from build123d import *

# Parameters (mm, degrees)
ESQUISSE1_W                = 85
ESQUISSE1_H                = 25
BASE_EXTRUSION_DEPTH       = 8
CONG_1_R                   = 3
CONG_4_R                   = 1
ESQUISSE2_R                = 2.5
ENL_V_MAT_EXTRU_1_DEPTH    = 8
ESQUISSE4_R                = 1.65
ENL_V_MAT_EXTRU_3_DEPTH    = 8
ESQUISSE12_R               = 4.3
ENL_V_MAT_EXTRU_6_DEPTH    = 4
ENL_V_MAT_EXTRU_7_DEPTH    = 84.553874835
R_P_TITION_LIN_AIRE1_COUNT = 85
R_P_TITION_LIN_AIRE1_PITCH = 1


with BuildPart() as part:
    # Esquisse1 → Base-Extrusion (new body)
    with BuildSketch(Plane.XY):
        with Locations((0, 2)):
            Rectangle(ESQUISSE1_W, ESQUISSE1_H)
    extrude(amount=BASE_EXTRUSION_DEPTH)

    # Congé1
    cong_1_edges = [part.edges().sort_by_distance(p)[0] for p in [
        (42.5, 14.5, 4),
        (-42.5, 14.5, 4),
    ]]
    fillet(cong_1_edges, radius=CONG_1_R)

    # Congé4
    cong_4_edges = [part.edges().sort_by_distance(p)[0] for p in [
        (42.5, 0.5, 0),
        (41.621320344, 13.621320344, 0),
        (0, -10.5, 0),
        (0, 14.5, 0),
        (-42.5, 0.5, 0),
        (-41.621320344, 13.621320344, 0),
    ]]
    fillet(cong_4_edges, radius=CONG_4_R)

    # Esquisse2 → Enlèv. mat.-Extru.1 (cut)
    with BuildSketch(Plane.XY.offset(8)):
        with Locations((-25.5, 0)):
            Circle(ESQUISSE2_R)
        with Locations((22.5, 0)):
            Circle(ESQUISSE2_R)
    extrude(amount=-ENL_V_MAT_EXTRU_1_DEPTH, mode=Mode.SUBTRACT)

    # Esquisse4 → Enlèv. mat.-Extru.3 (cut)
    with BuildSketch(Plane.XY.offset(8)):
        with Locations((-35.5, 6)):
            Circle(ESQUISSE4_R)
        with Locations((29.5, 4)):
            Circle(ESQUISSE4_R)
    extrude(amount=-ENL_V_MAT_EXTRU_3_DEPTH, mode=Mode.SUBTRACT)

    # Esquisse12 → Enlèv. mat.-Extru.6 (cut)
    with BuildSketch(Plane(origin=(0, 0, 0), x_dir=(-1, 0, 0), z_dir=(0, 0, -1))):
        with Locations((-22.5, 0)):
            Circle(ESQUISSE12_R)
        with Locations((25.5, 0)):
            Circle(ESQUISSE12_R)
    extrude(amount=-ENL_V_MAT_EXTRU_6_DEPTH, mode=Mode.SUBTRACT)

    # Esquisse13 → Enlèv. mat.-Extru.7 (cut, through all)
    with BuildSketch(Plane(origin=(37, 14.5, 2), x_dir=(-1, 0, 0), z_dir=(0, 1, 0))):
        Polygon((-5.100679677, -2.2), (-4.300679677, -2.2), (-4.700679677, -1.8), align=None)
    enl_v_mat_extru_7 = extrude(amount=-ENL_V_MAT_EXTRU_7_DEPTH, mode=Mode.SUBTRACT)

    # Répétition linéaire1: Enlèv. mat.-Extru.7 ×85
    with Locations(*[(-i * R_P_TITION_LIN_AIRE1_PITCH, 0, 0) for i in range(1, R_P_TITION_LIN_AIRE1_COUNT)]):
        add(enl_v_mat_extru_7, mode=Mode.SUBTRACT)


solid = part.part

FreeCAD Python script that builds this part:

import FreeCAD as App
import Part
import Sketcher
from FreeCAD import Vector


def edges_at(feature, points):
    """Names of the edges that pass closest to the given points."""
    edges = feature.Shape.Edges
    near = lambda p: min(range(len(edges)), key=lambda i: edges[i].distToShape(Part.Vertex(*p))[0])
    return sorted({f"Edge{near(p) + 1}" for p in points})

doc = App.newDocument("Part")
params = doc.addObject("Spreadsheet::Sheet", "Params")
for row, (alias, value) in enumerate([
    ("sketch1_width", "85 mm"),
    ("sketch1_height", "25 mm"),
    ("pad1_length", "8 mm"),
    ("fillet_radius", "3 mm"),
    ("fillet2_radius", "1 mm"),
    ("sketch2_diameter", "5 mm"),
    ("pocket1_length", "8 mm"),
    ("sketch3_diameter", "3.3 mm"),
    ("pocket2_length", "8 mm"),
    ("sketch4_diameter", "8.6 mm"),
    ("pocket3_length", "4 mm"),
    ("sketch5_width", "0.8 mm"),
    ("linearpattern_pitch", "1 mm"),
], start=1):
    params.set(f"A{row}", alias)
    params.set(f"B{row}", "=" + value)
    params.setAlias(f"B{row}", alias)

body = doc.addObject("PartDesign::Body", "Body")

# Sketch on XY plane
sketch1 = doc.addObject("Sketcher::SketchObject", "Sketch")
body.addObject(sketch1)
sketch1.AttachmentSupport = (doc.XY_Plane, [""])
sketch1.MapMode = "FlatFace"
sketch1.addGeometry(Part.LineSegment(Vector(-42.5, 14.5, 0), Vector(-42.5, -10.5, 0)), False)
sketch1.addGeometry(Part.LineSegment(Vector(-42.5, -10.5, 0), Vector(42.5, -10.5, 0)), False)
sketch1.addGeometry(Part.LineSegment(Vector(42.5, -10.5, 0), Vector(42.5, 14.5, 0)), False)
sketch1.addGeometry(Part.LineSegment(Vector(42.5, 14.5, 0), Vector(-42.5, 14.5, 0)), False)
sketch1.addConstraint(Sketcher.Constraint("Coincident", 0, 2, 1, 1))
sketch1.addConstraint(Sketcher.Constraint("Coincident", 1, 2, 2, 1))
sketch1.addConstraint(Sketcher.Constraint("Coincident", 2, 2, 3, 1))
sketch1.addConstraint(Sketcher.Constraint("Coincident", 3, 2, 0, 1))
sketch1.addConstraint(Sketcher.Constraint("Vertical", 0))
sketch1.addConstraint(Sketcher.Constraint("Horizontal", 1))
sketch1.addConstraint(Sketcher.Constraint("Vertical", 2))
sketch1.addConstraint(Sketcher.Constraint("Horizontal", 3))
sketch1.addConstraint(Sketcher.Constraint("DistanceX", 1, 1, 1, 2, 85.0))
sketch1.addConstraint(Sketcher.Constraint("DistanceY", 0, 2, 0, 1, 25.0))
sketch1.addConstraint(Sketcher.Constraint("DistanceX", 0, 2, -1, 1, 42.5))
sketch1.addConstraint(Sketcher.Constraint("DistanceY", 0, 2, -1, 1, 10.5))
sketch1.setExpression("Constraints[8]", "Params.sketch1_width")
sketch1.setExpression("Constraints[9]", "Params.sketch1_height")
pad1 = doc.addObject("PartDesign::Pad", "Pad")
body.addObject(pad1)
pad1.Profile = sketch1
pad1.setExpression("Length", "Params.pad1_length")
doc.recompute()

fillet = doc.addObject("PartDesign::Fillet", "Fillet")
body.addObject(fillet)
fillet.Base = (pad1, edges_at(pad1, [(42.5, 14.5, 4), (-42.5, 14.5, 4)]))
fillet.setExpression("Radius", "Params.fillet_radius")
doc.recompute()

fillet2 = doc.addObject("PartDesign::Fillet", "Fillet001")
body.addObject(fillet2)
fillet2.Base = (fillet, edges_at(fillet, [
    (42.5, 0.5, 0),
    (41.621, 13.621, 0),
    (0, -10.5, 0),
    (0, 14.5, 0),
    (-42.5, 0.5, 0),
    (-41.621, 13.621, 0),
]))
fillet2.setExpression("Radius", "Params.fillet2_radius")

# Sketch on XY plane
sketch2 = doc.addObject("Sketcher::SketchObject", "Sketch001")
body.addObject(sketch2)
sketch2.AttachmentSupport = (doc.XY_Plane, [""])
sketch2.MapMode = "FlatFace"
sketch2.AttachmentOffset = App.Placement(Vector(0, 0, 8), App.Rotation())
sketch2.addGeometry(Part.Circle(Vector(-25.5, 0, 0), Vector(0, 0, 1), 2.5), False)
sketch2.addGeometry(Part.Circle(Vector(22.5, 0, 0), Vector(0, 0, 1), 2.5), False)
sketch2.addConstraint(Sketcher.Constraint("Equal", 0, 1))
sketch2.addConstraint(Sketcher.Constraint("PointOnObject", 0, 3, -1))
sketch2.addConstraint(Sketcher.Constraint("PointOnObject", 1, 3, -1))
sketch2.addConstraint(Sketcher.Constraint("Diameter", 0, 5.0))
sketch2.addConstraint(Sketcher.Constraint("DistanceX", 0, 3, 1, 3, 48.0))
sketch2.addConstraint(Sketcher.Constraint("DistanceX", 0, 3, -1, 1, 25.5))
sketch2.setExpression("Constraints[3]", "Params.sketch2_diameter")
pocket1 = doc.addObject("PartDesign::Pocket", "Pocket")
body.addObject(pocket1)
pocket1.Profile = sketch2
pocket1.setExpression("Length", "Params.pocket1_length")

# Sketch on XY plane
sketch3 = doc.addObject("Sketcher::SketchObject", "Sketch002")
body.addObject(sketch3)
sketch3.AttachmentSupport = (doc.XY_Plane, [""])
sketch3.MapMode = "FlatFace"
sketch3.AttachmentOffset = App.Placement(Vector(0, 0, 8), App.Rotation())
sketch3.addGeometry(Part.Circle(Vector(-35.5, 6, 0), Vector(0, 0, 1), 1.65), False)
sketch3.addGeometry(Part.Circle(Vector(29.5, 4, 0), Vector(0, 0, 1), 1.65), False)
sketch3.addConstraint(Sketcher.Constraint("Equal", 0, 1))
sketch3.addConstraint(Sketcher.Constraint("Diameter", 0, 3.3))
sketch3.addConstraint(Sketcher.Constraint("DistanceY", -1, 1, 0, 3, 6.0))
sketch3.addConstraint(Sketcher.Constraint("DistanceY", -1, 1, 1, 3, 4.0))
sketch3.addConstraint(Sketcher.Constraint("DistanceX", 0, 3, 1, 3, 65.0))
sketch3.addConstraint(Sketcher.Constraint("DistanceX", 0, 3, -1, 1, 35.5))
sketch3.setExpression("Constraints[1]", "Params.sketch3_diameter")
pocket2 = doc.addObject("PartDesign::Pocket", "Pocket001")
body.addObject(pocket2)
pocket2.Profile = sketch3
pocket2.setExpression("Length", "Params.pocket2_length")

# Sketch on XY plane
sketch4 = doc.addObject("Sketcher::SketchObject", "Sketch003")
body.addObject(sketch4)
sketch4.AttachmentSupport = (doc.XY_Plane, [""])
sketch4.MapMode = "FlatFace"
sketch4.addGeometry(Part.Circle(Vector(22.5, 0, 0), Vector(0, 0, 1), 4.3), False)
sketch4.addGeometry(Part.Circle(Vector(-25.5, 0, 0), Vector(0, 0, 1), 4.3), False)
sketch4.addConstraint(Sketcher.Constraint("Equal", 0, 1))
sketch4.addConstraint(Sketcher.Constraint("PointOnObject", 0, 3, -1))
sketch4.addConstraint(Sketcher.Constraint("PointOnObject", 1, 3, -1))
sketch4.addConstraint(Sketcher.Constraint("Diameter", 0, 8.6))
sketch4.addConstraint(Sketcher.Constraint("DistanceX", 1, 3, 0, 3, 48.0))
sketch4.addConstraint(Sketcher.Constraint("DistanceX", -1, 1, 0, 3, 22.5))
sketch4.setExpression("Constraints[3]", "Params.sketch4_diameter")
pocket3 = doc.addObject("PartDesign::Pocket", "Pocket002")
body.addObject(pocket3)
pocket3.Profile = sketch4
pocket3.setExpression("Length", "Params.pocket3_length")
pocket3.Reversed = True

# Sketch on XZ plane
sketch5 = doc.addObject("Sketcher::SketchObject", "Sketch004")
body.addObject(sketch5)
sketch5.AttachmentSupport = (doc.XZ_Plane, [""])
sketch5.MapMode = "FlatFace"
sketch5.AttachmentOffset = App.Placement(Vector(0, 0, -14.5), App.Rotation())
sketch5.addGeometry(Part.LineSegment(Vector(42.10068, -0.2, 0), Vector(41.30068, -0.2, 0)), False)
sketch5.addGeometry(Part.LineSegment(Vector(41.30068, -0.2, 0), Vector(41.70068, 0.2, 0)), False)
sketch5.addGeometry(Part.LineSegment(Vector(41.70068, 0.2, 0), Vector(42.10068, -0.2, 0)), False)
sketch5.addConstraint(Sketcher.Constraint("Coincident", 0, 2, 1, 1))
sketch5.addConstraint(Sketcher.Constraint("Coincident", 1, 2, 2, 1))
sketch5.addConstraint(Sketcher.Constraint("Coincident", 2, 2, 0, 1))
sketch5.addConstraint(Sketcher.Constraint("Horizontal", 0))
sketch5.addConstraint(Sketcher.Constraint("Perpendicular", 1, 2))
sketch5.addConstraint(Sketcher.Constraint("Equal", 1, 2))
sketch5.addConstraint(Sketcher.Constraint("DistanceX", 0, 2, 0, 1, 0.8))
sketch5.addConstraint(Sketcher.Constraint("DistanceY", 0, 2, -1, 1, 0.2))
sketch5.addConstraint(Sketcher.Constraint("DistanceX", -1, 1, 0, 2, 41.30068))
sketch5.setExpression("Constraints[6]", "Params.sketch5_width")
pocket4 = doc.addObject("PartDesign::Pocket", "Pocket003")
body.addObject(pocket4)
pocket4.Profile = sketch5
pocket4.Type = "ThroughAll"
pocket4.Reversed = True
doc.recompute()

linearpattern = doc.addObject("PartDesign::LinearPattern", "LinearPattern")
body.addObject(linearpattern)
linearpattern.Originals = [pocket4]
linearpattern.Direction = (doc.X_Axis, [""])
linearpattern.Mode = "offset"
linearpattern.setExpression("Offset", "Params.linearpattern_pitch")
linearpattern.Occurrences = 85
linearpattern.Reversed = True
body.Tip = linearpattern

doc.recompute()
